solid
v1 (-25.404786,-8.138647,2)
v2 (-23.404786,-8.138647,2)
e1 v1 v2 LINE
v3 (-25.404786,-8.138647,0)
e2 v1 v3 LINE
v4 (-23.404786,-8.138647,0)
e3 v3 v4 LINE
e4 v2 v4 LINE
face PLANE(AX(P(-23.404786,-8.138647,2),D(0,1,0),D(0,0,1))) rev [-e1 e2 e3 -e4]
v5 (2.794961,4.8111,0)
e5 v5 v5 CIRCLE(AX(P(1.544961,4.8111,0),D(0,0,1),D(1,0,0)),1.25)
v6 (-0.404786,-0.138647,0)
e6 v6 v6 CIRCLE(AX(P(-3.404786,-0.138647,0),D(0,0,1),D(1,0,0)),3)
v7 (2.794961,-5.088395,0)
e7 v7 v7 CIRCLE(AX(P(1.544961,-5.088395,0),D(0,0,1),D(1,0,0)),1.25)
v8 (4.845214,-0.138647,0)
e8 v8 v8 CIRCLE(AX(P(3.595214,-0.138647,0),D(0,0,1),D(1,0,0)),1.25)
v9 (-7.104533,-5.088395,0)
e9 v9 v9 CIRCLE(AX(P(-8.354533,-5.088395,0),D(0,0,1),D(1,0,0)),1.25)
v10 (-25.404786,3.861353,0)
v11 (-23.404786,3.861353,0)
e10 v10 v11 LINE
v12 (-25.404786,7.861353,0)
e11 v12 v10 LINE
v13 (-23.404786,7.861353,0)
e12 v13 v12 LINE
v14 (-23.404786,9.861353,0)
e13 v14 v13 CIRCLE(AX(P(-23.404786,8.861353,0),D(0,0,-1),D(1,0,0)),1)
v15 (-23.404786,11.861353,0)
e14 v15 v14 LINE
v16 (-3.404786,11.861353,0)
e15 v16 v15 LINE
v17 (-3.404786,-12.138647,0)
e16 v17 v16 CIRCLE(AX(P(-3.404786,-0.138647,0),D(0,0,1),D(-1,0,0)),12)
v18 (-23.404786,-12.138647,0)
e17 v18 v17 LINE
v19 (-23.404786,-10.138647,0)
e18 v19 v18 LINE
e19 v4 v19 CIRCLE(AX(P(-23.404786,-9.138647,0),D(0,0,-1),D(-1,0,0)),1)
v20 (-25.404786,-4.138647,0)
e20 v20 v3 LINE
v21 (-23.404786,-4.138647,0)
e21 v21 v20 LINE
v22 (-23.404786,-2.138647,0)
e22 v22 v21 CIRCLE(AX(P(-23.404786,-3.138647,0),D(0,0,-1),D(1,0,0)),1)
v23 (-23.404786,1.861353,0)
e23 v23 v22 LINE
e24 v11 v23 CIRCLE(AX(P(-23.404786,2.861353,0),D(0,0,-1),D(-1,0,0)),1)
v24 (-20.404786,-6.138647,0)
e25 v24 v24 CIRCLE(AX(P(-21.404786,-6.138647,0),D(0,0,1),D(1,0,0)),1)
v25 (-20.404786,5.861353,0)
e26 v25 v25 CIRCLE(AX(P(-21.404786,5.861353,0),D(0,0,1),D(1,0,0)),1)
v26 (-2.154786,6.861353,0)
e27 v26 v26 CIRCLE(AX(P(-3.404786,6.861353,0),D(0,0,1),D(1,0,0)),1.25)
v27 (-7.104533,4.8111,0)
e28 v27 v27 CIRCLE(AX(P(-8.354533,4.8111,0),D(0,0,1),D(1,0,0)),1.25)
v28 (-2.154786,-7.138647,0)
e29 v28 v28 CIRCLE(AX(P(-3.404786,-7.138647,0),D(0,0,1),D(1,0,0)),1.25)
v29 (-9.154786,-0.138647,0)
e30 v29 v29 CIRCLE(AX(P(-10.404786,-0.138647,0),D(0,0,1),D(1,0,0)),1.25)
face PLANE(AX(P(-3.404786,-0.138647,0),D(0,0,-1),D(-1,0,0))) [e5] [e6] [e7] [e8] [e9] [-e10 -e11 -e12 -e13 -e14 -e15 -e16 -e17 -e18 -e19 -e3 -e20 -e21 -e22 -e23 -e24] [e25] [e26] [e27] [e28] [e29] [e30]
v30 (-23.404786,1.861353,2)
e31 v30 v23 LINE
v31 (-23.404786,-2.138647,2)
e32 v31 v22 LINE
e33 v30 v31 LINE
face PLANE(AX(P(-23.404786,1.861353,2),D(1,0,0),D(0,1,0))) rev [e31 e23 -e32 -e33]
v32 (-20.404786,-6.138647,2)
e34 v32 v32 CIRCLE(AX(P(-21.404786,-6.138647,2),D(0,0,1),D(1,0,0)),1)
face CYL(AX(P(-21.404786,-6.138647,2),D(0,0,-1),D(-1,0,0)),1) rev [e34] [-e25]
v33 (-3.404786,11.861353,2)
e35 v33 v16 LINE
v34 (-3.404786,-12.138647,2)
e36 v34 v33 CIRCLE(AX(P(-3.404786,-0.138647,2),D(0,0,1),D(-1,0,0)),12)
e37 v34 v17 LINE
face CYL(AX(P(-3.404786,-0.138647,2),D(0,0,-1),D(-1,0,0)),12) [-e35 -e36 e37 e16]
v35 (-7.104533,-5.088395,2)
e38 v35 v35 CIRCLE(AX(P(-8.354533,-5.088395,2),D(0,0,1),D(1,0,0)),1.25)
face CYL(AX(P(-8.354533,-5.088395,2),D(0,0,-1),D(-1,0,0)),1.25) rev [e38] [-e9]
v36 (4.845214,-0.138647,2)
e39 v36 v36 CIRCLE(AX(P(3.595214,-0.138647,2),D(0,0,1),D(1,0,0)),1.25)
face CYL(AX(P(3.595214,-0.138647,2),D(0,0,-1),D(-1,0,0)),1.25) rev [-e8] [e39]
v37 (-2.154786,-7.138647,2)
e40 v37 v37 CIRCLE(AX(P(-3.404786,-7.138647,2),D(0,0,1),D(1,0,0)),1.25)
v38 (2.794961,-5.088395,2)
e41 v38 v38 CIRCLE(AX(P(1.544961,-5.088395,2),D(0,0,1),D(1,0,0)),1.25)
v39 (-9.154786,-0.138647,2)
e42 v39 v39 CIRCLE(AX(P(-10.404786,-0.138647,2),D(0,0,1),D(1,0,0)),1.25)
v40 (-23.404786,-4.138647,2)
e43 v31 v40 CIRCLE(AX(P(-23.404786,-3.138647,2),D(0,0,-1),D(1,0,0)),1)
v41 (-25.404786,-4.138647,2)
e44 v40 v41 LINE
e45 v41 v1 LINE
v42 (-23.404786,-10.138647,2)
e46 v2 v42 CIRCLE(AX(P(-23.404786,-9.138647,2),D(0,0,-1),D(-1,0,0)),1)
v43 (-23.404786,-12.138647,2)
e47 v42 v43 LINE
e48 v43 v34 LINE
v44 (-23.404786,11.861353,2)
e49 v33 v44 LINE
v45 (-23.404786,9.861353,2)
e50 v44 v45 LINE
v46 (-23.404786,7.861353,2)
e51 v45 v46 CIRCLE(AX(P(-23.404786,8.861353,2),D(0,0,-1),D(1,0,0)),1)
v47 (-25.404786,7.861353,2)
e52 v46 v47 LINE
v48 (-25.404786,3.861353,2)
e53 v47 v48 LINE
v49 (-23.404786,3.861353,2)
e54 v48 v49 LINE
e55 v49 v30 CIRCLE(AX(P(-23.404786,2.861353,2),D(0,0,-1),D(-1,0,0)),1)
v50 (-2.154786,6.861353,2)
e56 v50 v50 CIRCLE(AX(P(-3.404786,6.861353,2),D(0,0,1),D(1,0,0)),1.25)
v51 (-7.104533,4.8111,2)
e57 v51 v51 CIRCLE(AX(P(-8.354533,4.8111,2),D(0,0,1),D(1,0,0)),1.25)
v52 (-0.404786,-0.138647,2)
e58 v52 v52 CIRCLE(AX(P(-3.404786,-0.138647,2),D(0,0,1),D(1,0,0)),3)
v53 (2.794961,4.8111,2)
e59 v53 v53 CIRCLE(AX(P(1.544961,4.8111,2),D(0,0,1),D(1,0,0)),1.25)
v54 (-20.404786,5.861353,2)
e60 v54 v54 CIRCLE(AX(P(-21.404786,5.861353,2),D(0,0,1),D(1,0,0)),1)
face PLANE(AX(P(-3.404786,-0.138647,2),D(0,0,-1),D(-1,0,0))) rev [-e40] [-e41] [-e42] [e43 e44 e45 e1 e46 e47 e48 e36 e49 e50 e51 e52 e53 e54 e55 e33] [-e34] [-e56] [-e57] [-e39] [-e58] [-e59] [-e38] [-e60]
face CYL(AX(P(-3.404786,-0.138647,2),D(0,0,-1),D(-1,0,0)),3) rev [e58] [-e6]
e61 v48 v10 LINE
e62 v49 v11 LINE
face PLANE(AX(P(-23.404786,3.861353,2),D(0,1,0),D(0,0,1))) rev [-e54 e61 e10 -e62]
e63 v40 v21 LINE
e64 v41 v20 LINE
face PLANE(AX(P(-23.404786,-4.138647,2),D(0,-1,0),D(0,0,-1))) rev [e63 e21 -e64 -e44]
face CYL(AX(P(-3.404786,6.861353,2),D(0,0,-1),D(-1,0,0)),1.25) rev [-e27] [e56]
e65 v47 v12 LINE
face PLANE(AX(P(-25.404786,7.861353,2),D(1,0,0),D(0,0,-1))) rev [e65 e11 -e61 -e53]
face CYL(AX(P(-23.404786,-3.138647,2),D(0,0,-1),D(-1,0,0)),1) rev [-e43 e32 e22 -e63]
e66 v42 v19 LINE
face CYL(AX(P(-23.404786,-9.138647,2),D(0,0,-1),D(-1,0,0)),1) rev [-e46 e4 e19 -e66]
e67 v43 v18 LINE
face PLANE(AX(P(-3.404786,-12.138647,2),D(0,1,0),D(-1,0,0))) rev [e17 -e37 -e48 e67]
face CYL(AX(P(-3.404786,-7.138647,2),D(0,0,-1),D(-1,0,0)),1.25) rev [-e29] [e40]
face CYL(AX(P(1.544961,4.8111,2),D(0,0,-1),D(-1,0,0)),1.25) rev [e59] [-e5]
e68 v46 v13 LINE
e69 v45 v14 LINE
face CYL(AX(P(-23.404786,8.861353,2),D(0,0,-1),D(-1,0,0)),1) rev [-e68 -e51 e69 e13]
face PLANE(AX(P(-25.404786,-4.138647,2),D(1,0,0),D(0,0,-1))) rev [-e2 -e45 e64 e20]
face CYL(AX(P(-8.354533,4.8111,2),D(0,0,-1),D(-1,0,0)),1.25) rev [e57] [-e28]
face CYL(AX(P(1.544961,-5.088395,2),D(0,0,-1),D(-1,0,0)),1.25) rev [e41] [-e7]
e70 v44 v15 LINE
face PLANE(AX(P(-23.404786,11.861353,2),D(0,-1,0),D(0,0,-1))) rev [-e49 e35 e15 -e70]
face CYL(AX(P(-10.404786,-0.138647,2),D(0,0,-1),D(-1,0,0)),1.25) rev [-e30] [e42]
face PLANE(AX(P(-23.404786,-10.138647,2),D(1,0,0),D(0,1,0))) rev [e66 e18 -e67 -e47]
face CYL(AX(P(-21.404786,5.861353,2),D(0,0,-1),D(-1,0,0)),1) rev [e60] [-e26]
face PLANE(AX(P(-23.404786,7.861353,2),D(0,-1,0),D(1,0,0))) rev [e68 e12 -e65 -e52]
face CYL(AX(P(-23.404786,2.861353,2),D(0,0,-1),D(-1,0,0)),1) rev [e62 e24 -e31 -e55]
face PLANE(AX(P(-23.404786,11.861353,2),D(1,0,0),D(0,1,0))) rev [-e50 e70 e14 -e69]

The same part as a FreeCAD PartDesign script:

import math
import FreeCAD as App
import Part
import Sketcher

doc = App.newDocument("Part")
body = doc.addObject("PartDesign::Body", "Body")

# Sketch on XY plane
sketch1 = body.newObject("Sketcher::SketchObject", "Sketch")
sketch1.AttachmentSupport = (doc.getObject("XY_Plane"), [""])
sketch1.MapMode = "FlatFace"
sketch1.addGeometry(Part.LineSegment(App.Vector(-23.404786, 11.861353, 0), App.Vector(-23.404786, 9.861353, 0)), False)
sketch1.addGeometry(Part.ArcOfCircle(Part.Circle(App.Vector(-23.404786, 8.861353, 0), App.Vector(0, 0, 1), 1), math.radians(-90), math.radians(90)), False)
sketch1.addGeometry(Part.LineSegment(App.Vector(-23.404786, 7.861353, 0), App.Vector(-25.404786, 7.861353, 0)), False)
sketch1.addGeometry(Part.LineSegment(App.Vector(-25.404786, 7.861353, 0), App.Vector(-25.404786, 3.861353, 0)), False)
sketch1.addGeometry(Part.LineSegment(App.Vector(-25.404786, 3.861353, 0), App.Vector(-23.404786, 3.861353, 0)), False)
sketch1.addGeometry(Part.ArcOfCircle(Part.Circle(App.Vector(-23.404786, 2.861353, 0), App.Vector(0, 0, 1), 1), math.radians(-90), math.radians(90)), False)
sketch1.addGeometry(Part.LineSegment(App.Vector(-23.404786, 1.861353, 0), App.Vector(-23.404786, -2.138647, 0)), False)
sketch1.addGeometry(Part.ArcOfCircle(Part.Circle(App.Vector(-23.404786, -3.138647, 0), App.Vector(0, 0, 1), 1), math.radians(-90), math.radians(90)), False)
sketch1.addGeometry(Part.LineSegment(App.Vector(-23.404786, -4.138647, 0), App.Vector(-25.404786, -4.138647, 0)), False)
sketch1.addGeometry(Part.LineSegment(App.Vector(-25.404786, -4.138647, 0), App.Vector(-25.404786, -8.138647, 0)), False)
sketch1.addGeometry(Part.LineSegment(App.Vector(-25.404786, -8.138647, 0), App.Vector(-23.404786, -8.138647, 0)), False)
sketch1.addGeometry(Part.ArcOfCircle(Part.Circle(App.Vector(-23.404786, -9.138647, 0), App.Vector(0, 0, 1), 1), math.radians(-90), math.radians(90)), False)
sketch1.addGeometry(Part.LineSegment(App.Vector(-23.404786, -10.138647, 0), App.Vector(-23.404786, -12.138647, 0)), False)
sketch1.addGeometry(Part.LineSegment(App.Vector(-23.404786, -12.138647, 0), App.Vector(-3.404786, -12.138647, 0)), False)
sketch1.addGeometry(Part.ArcOfCircle(Part.Circle(App.Vector(-3.404786, -0.138647, 0), App.Vector(0, 0, 1), 12), math.radians(-90), math.radians(90)), False)
sketch1.addGeometry(Part.LineSegment(App.Vector(-3.404786, 11.861353, 0), App.Vector(-23.404786, 11.861353, 0)), False)
sketch1.addGeometry(Part.Circle(App.Vector(-21.404786, -6.138647, 0), App.Vector(0, 0, 1), 1), False)
sketch1.addGeometry(Part.Circle(App.Vector(-3.404786, -7.138647, 0), App.Vector(0, 0, 1), 1.25), False)
sketch1.addGeometry(Part.Circle(App.Vector(-8.354533, -5.088395, 0), App.Vector(0, 0, 1), 1.25), False)
sketch1.addGeometry(Part.Circle(App.Vector(1.544961, -5.088395, 0), App.Vector(0, 0, 1), 1.25), False)
sketch1.addGeometry(Part.Circle(App.Vector(-10.404786, -0.138647, 0), App.Vector(0, 0, 1), 1.25), False)
sketch1.addGeometry(Part.Circle(App.Vector(-21.404786, 5.861353, 0), App.Vector(0, 0, 1), 1), False)
sketch1.addGeometry(Part.Circle(App.Vector(-3.404786, -0.138647, 0), App.Vector(0, 0, 1), 3), False)
sketch1.addGeometry(Part.Circle(App.Vector(3.595214, -0.138647, 0), App.Vector(0, 0, 1), 1.25), False)
sketch1.addGeometry(Part.Circle(App.Vector(-8.354533, 4.8111, 0), App.Vector(0, 0, 1), 1.25), False)
sketch1.addGeometry(Part.Circle(App.Vector(-3.404786, 6.861353, 0), App.Vector(0, 0, 1), 1.25), False)
sketch1.addGeometry(Part.Circle(App.Vector(1.544961, 4.8111, 0), App.Vector(0, 0, 1), 1.25), False)
sketch1.addConstraint(Sketcher.Constraint("Coincident", 0, 2, 1, 2))
sketch1.addConstraint(Sketcher.Constraint("Tangent", 1, 1, 2, 1))
sketch1.addConstraint(Sketcher.Constraint("Coincident", 2, 2, 3, 1))
sketch1.addConstraint(Sketcher.Constraint("Coincident", 3, 2, 4, 1))
sketch1.addConstraint(Sketcher.Constraint("Tangent", 4, 2, 5, 2))
sketch1.addConstraint(Sketcher.Constraint("Coincident", 5, 1, 6, 1))
sketch1.addConstraint(Sketcher.Constraint("Coincident", 6, 2, 7, 2))
sketch1.addConstraint(Sketcher.Constraint("Tangent", 7, 1, 8, 1))
sketch1.addConstraint(Sketcher.Constraint("Coincident", 8, 2, 9, 1))
sketch1.addConstraint(Sketcher.Constraint("Coincident", 9, 2, 10, 1))
sketch1.addConstraint(Sketcher.Constraint("Tangent", 10, 2, 11, 2))
sketch1.addConstraint(Sketcher.Constraint("Coincident", 11, 1, 12, 1))
sketch1.addConstraint(Sketcher.Constraint("Coincident", 12, 2, 13, 1))
sketch1.addConstraint(Sketcher.Constraint("Tangent", 13, 2, 14, 1))
sketch1.addConstraint(Sketcher.Constraint("Tangent", 14, 2, 15, 1))
sketch1.addConstraint(Sketcher.Constraint("Coincident", 15, 2, 0, 1))
sketch1.addConstraint(Sketcher.Constraint("Vertical", 0))
sketch1.addConstraint(Sketcher.Constraint("Horizontal", 2))
sketch1.addConstraint(Sketcher.Constraint("Vertical", 3))
sketch1.addConstraint(Sketcher.Constraint("Horizontal", 4))
sketch1.addConstraint(Sketcher.Constraint("Vertical", 6))
sketch1.addConstraint(Sketcher.Constraint("Horizontal", 8))
sketch1.addConstraint(Sketcher.Constraint("Vertical", 9))
sketch1.addConstraint(Sketcher.Constraint("Horizontal", 10))
sketch1.addConstraint(Sketcher.Constraint("Vertical", 12))
sketch1.addConstraint(Sketcher.Constraint("Horizontal", 13))
sketch1.addConstraint(Sketcher.Constraint("Horizontal", 15))
sketch1.addConstraint(Sketcher.Constraint("Coincident", 22, 3, 14, 3))
sketch1.addConstraint(Sketcher.Constraint("Equal", 1, 5))
sketch1.addConstraint(Sketcher.Constraint("Equal", 5, 7))
sketch1.addConstraint(Sketcher.Constraint("Equal", 7, 11))
sketch1.addConstraint(Sketcher.Constraint("Equal", 11, 16))
sketch1.addConstraint(Sketcher.Constraint("Equal", 17, 18))
sketch1.addConstraint(Sketcher.Constraint("Equal", 18, 19))
sketch1.addConstraint(Sketcher.Constraint("Equal", 19, 20))
sketch1.addConstraint(Sketcher.Constraint("Equal", 16, 21))
sketch1.addConstraint(Sketcher.Constraint("Equal", 20, 23))
sketch1.addConstraint(Sketcher.Constraint("Equal", 23, 24))
sketch1.addConstraint(Sketcher.Constraint("Equal", 24, 25))
sketch1.addConstraint(Sketcher.Constraint("Equal", 25, 26))
sketch1.addConstraint(Sketcher.Constraint("Horizontal", 18, 3, 19, 3))
sketch1.addConstraint(Sketcher.Constraint("Horizontal", 14, 3, 20, 3))
sketch1.addConstraint(Sketcher.Constraint("Horizontal", 22, 3, 23, 3))
sketch1.addConstraint(Sketcher.Constraint("Horizontal", 24, 3, 26, 3))
sketch1.addConstraint(Sketcher.Constraint("Vertical", 1, 3, 5, 3))
sketch1.addConstraint(Sketcher.Constraint("Vertical", 5, 3, 7, 3))
sketch1.addConstraint(Sketcher.Constraint("Vertical", 7, 3, 11, 3))
sketch1.addConstraint(Sketcher.Constraint("Vertical", 14, 3, 17, 3))
sketch1.addConstraint(Sketcher.Constraint("Vertical", 16, 3, 21, 3))
sketch1.addConstraint(Sketcher.Constraint("Vertical", 18, 3, 24, 3))
sketch1.addConstraint(Sketcher.Constraint("Vertical", 22, 3, 25, 3))
sketch1.addConstraint(Sketcher.Constraint("Vertical", 19, 3, 26, 3))
sketch1.addConstraint(Sketcher.Constraint("Vertical", 11, 3, 0, 2))
sketch1.addConstraint(Sketcher.Constraint("Vertical", 4, 2, 5, 1))
sketch1.addConstraint(Sketcher.Constraint("Vertical", 3, 2, 8, 2))
sketch1.addConstraint(Sketcher.Constraint("Vertical", 10, 2, 11, 1))
sketch1.addConstraint(Sketcher.Constraint("Equal", 10, 0))
sketch1.addConstraint(Sketcher.Constraint("Equal", 3, 6))
sketch1.addConstraint(Sketcher.Constraint("Equal", 6, 9))
sketch1.addConstraint(Sketcher.Constraint("Equal", 0, 12))
sketch1.addConstraint(Sketcher.Constraint("Diameter", 16, 2.0))
sketch1.addConstraint(Sketcher.Constraint("Diameter", 22, 6.0))
sketch1.addConstraint(Sketcher.Constraint("Radius", 14, 12.0))
sketch1.addConstraint(Sketcher.Constraint("Diameter", 17, 2.5))
sketch1.addConstraint(Sketcher.Constraint("DistanceX", 2, 2, 2, 1, 2.0))
sketch1.addConstraint(Sketcher.Constraint("DistanceX", 13, 1, 13, 2, 20.0))
sketch1.addConstraint(Sketcher.Constraint("DistanceX", 7, 3, 16, 3, 2.0))
sketch1.addConstraint(Sketcher.Constraint("DistanceY", 16, 3, 7, 3, 3.0))
sketch1.addConstraint(Sketcher.Constraint("DistanceY", 17, 3, 14, 3, 7.0))
sketch1.addConstraint(Sketcher.Constraint("DistanceX", 20, 3, 14, 3, 7.0))
sketch1.addConstraint(Sketcher.Constraint("DistanceY", 21, 3, 1, 3, 3.0))
sketch1.addConstraint(Sketcher.Constraint("DistanceX", 14, 3, 23, 3, 7.0))
sketch1.addConstraint(Sketcher.Constraint("DistanceY", 14, 3, 25, 3, 7.0))
sketch1.addConstraint(Sketcher.Constraint("DistanceY", -1, 1, 24, 3, 4.8111))
sketch1.addConstraint(Sketcher.Constraint("DistanceX", -1, 1, 19, 3, 1.544961))
sketch1.addConstraint(Sketcher.Constraint("DistanceX", 1, 3, -1, 1, 23.404786))
sketch1.addConstraint(Sketcher.Constraint("DistanceY", -1, 1, 1, 3, 8.861353))
sketch1.addConstraint(Sketcher.Constraint("DistanceX", 18, 3, -1, 1, 8.354533))
sketch1.addConstraint(Sketcher.Constraint("DistanceY", 18, 3, -1, 1, 5.088395))
pad1 = body.newObject("PartDesign::Pad", "Pad")
pad1.Profile = sketch1
pad1.Length = 2

doc.recompute()
